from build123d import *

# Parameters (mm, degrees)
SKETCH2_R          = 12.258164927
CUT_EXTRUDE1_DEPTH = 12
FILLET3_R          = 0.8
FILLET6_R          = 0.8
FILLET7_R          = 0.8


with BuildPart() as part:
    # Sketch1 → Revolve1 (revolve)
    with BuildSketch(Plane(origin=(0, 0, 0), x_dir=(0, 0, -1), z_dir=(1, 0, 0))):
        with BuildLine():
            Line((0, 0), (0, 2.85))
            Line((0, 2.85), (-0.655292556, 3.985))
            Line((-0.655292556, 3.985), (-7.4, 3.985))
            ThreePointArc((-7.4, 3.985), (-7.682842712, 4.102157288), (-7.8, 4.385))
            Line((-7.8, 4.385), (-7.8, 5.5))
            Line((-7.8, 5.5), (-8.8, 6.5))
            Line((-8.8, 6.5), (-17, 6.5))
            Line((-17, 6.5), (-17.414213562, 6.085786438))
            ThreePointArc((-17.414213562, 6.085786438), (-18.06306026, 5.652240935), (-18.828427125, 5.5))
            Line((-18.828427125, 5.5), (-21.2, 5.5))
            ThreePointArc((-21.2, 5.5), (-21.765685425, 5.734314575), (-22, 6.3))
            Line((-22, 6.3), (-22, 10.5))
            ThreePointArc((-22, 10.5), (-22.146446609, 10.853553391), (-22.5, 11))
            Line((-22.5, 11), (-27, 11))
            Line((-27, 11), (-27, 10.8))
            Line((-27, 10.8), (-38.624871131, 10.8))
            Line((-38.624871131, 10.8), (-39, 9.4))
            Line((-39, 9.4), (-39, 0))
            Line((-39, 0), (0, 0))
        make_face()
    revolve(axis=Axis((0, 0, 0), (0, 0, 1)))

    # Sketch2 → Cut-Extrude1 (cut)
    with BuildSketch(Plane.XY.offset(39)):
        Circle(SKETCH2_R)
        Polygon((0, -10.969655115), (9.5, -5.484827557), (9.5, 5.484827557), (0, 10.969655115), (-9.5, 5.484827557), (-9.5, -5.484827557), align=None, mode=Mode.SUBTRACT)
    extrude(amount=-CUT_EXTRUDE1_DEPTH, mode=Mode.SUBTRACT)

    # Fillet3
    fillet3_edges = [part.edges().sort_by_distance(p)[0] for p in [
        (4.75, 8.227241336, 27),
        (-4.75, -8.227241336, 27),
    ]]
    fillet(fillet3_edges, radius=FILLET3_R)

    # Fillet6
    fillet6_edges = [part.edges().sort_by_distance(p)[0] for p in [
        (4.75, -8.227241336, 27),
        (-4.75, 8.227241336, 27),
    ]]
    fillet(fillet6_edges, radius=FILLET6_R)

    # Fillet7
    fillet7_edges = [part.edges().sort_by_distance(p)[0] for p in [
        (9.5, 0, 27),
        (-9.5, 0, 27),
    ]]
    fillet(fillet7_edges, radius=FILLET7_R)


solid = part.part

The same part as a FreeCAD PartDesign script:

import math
import FreeCAD as App
import Part
import Sketcher

V = App.Vector
Q = App.Units.Quantity


def edges_at(feature, points):
    """Names of the edges that pass closest to the given points."""
    edges = feature.Shape.Edges
    near = lambda p: min(range(len(edges)), key=lambda i: edges[i].distToShape(Part.Vertex(*p))[0])
    return sorted({f"Edge{near(p) + 1}" for p in points})

doc = App.newDocument("Part")
body = doc.addObject("PartDesign::Body", "Body")

sketch1 = body.newObject("Sketcher::SketchObject", "Sketch")
sketch1.AttachmentSupport = (doc.getObject("YZ_Plane"), [""])
sketch1.MapMode = "FlatFace"
sketch1.addGeometry([
    Part.LineSegment(V(0, 0, 0), V(2.85, 0, 0)),
    Part.LineSegment(V(2.85, 0, 0), V(3.98, 0.66, 0)),
    Part.LineSegment(V(3.98, 0.66, 0), V(3.98, 7.4, 0)),
    Part.ArcOfCircle(Part.Circle(V(4.39, 7.4, 0), V(0, 0, 1), 0.4), math.radians(90), math.radians(180)),
    Part.LineSegment(V(4.38, 7.8, 0), V(5.5, 7.8, 0)),
    Part.LineSegment(V(5.5, 7.8, 0), V(6.5, 8.8, 0)),
    Part.LineSegment(V(6.5, 8.8, 0), V(6.5, 17, 0)),
    Part.LineSegment(V(6.5, 17, 0), V(6.09, 17.41, 0)),
    Part.ArcOfCircle(Part.Circle(V(7.5, 18.83, 0), V(0, 0, 1), 2), math.radians(180), math.radians(225)),
    Part.LineSegment(V(5.5, 18.83, 0), V(5.5, 21.2, 0)),
    Part.ArcOfCircle(Part.Circle(V(6.3, 21.2, 0), V(0, 0, 1), 0.8), math.radians(90), math.radians(180)),
    Part.LineSegment(V(6.3, 22, 0), V(10.5, 22, 0)),
    Part.ArcOfCircle(Part.Circle(V(10.5, 22.5, 0), V(0, 0, 1), 0.5), math.radians(-90), math.radians(0)),
    Part.LineSegment(V(11, 22.5, 0), V(11, 27, 0)),
    Part.LineSegment(V(11, 27, 0), V(10.8, 27, 0)),
    Part.LineSegment(V(10.8, 27, 0), V(10.8, 38.62, 0)),
    Part.LineSegment(V(10.8, 38.62, 0), V(9.4, 39, 0)),
    Part.LineSegment(V(9.4, 39, 0), V(0, 39, 0)),
    Part.LineSegment(V(0, 39, 0), V(0, 0, 0)),
], False)
sketch1.addConstraint([
    Sketcher.Constraint("Coincident", 0, 2, 1, 1),
    Sketcher.Constraint("Coincident", 1, 2, 2, 1),
    Sketcher.Constraint("Tangent", 2, 2, 3, 2),
    Sketcher.Constraint("Tangent", 3, 1, 4, 1),
    Sketcher.Constraint("Coincident", 4, 2, 5, 1),
    Sketcher.Constraint("Coincident", 5, 2, 6, 1),
    Sketcher.Constraint("Coincident", 6, 2, 7, 1),
    Sketcher.Constraint("Tangent", 7, 2, 8, 2),
    Sketcher.Constraint("Tangent", 8, 1, 9, 1),
    Sketcher.Constraint("Tangent", 9, 2, 10, 2),
    Sketcher.Constraint("Tangent", 10, 1, 11, 1),
    Sketcher.Constraint("Tangent", 11, 2, 12, 1),
    Sketcher.Constraint("Tangent", 12, 2, 13, 1),
    Sketcher.Constraint("Coincident", 13, 2, 14, 1),
    Sketcher.Constraint("Coincident", 14, 2, 15, 1),
    Sketcher.Constraint("Coincident", 15, 2, 16, 1),
    Sketcher.Constraint("Coincident", 16, 2, 17, 1),
    Sketcher.Constraint("Coincident", 17, 2, 18, 1),
    Sketcher.Constraint("Coincident", 18, 2, 0, 1),
    Sketcher.Constraint("Horizontal", 0),
    Sketcher.Constraint("Vertical", 2),
    Sketcher.Constraint("Horizontal", 4),
    Sketcher.Constraint("Vertical", 6),
    Sketcher.Constraint("Vertical", 9),
    Sketcher.Constraint("Horizontal", 11),
    Sketcher.Constraint("Vertical", 13),
    Sketcher.Constraint("Horizontal", 14),
    Sketcher.Constraint("Vertical", 15),
    Sketcher.Constraint("Horizontal", 17),
    Sketcher.Constraint("Vertical", 18),
    Sketcher.Constraint("Coincident", 18, 2, -1, 1),
    Sketcher.Constraint("Perpendicular", 5, 7),
    Sketcher.Constraint("Vertical", 4, 2, 8, 1),
    Sketcher.Constraint("Radius", 8, Q("2 mm")),
    Sketcher.Constraint("Radius", 3, Q("0.4 mm")),
    Sketcher.Constraint("Radius", 10, Q("0.8 mm")),
    Sketcher.Constraint("Radius", 12, Q("0.5 mm")),
    Sketcher.Constraint("DistanceY", 18, 2, 18, 1, Q("39 mm")),
    Sketcher.Constraint("Angle", 1, Q("30 deg")),
    Sketcher.Constraint("Angle", 5, Q("45 deg")),
    Sketcher.Constraint("Angle", 16, Q("165 deg")),
    Sketcher.Constraint("DistanceX", 11, 1, 11, 2, Q("4.2 mm")),
    Sketcher.Constraint("DistanceX", 14, 2, 14, 1, Q("0.2 mm")),
    Sketcher.Constraint("DistanceX", 17, 2, 17, 1, Q("9.4 mm")),
    Sketcher.Constraint("DistanceY", 6, 1, 6, 2, Q("8.2 mm")),
    Sketcher.Constraint("DistanceY", 13, 1, 13, 2, Q("4.5 mm")),
    Sketcher.Constraint("DistanceY", -1, 1, 6, 2, Q("17 mm")),
    Sketcher.Constraint("DistanceY", -1, 1, 10, 1, Q("22 mm")),
    Sketcher.Constraint("DistanceX", -1, 1, 12, 2, Q("11 mm")),
    Sketcher.Constraint("DistanceX", 4, 2, 5, 2, Q("1 mm")),
    Sketcher.Constraint("DistanceX", 0, 1, 0, 2, Q("2.85 mm")),
    Sketcher.Constraint("DistanceX", 4, 1, 4, 2, Q("1.115 mm")),
])
revolution = body.newObject("PartDesign::Revolution", "Revolution")
revolution.Profile = sketch1
revolution.ReferenceAxis = (sketch1, ["V_Axis"])
revolution.Angle = 360

sketch2 = body.newObject("Sketcher::SketchObject", "Sketch001")
sketch2.AttachmentSupport = (doc.getObject("XY_Plane"), [""])
sketch2.MapMode = "FlatFace"
sketch2.AttachmentOffset = App.Placement(V(0, 0, 39), App.Rotation())
sketch2.addGeometry([
    Part.Circle(V(0, 0, 0), V(0, 0, 1), 12),
    Part.LineSegment(V(10, -5, 0), V(0, -11, 0)),
    Part.LineSegment(V(0, -11, 0), V(-10, -5, 0)),
    Part.LineSegment(V(-10, -5, 0), V(-10, 5, 0)),
    Part.LineSegment(V(-10, 5, 0), V(0, 11, 0)),
    Part.LineSegment(V(0, 11, 0), V(10, 5, 0)),
    Part.LineSegment(V(10, 5, 0), V(10, -5, 0)),
], False)
sketch2.addConstraint([
    Sketcher.Constraint("Coincident", 1, 2, 2, 1),
    Sketcher.Constraint("Coincident", 2, 2, 3, 1),
    Sketcher.Constraint("Coincident", 3, 2, 4, 1),
    Sketcher.Constraint("Coincident", 4, 2, 5, 1),
    Sketcher.Constraint("Coincident", 5, 2, 6, 1),
    Sketcher.Constraint("Coincident", 6, 2, 1, 1),
    Sketcher.Constraint("Vertical", 3),
    Sketcher.Constraint("Vertical", 6),
    Sketcher.Constraint("Coincident", 0, 3, -1, 1),
    Sketcher.Constraint("Symmetric", 1, 2, 4, 2, -1, 1),
    Sketcher.Constraint("Symmetric", 2, 2, 5, 2, -1, 1),
    Sketcher.Constraint("PointOnObject", 1, 2, -2),
    Sketcher.Constraint("Parallel", 1, 4),
    Sketcher.Constraint("Horizontal", 3, 2, 5, 2),
    Sketcher.Constraint("Angle", 1, Q("-150 deg")),
    Sketcher.Constraint("DistanceX", 3, 2, 5, 2, Q("19 mm")),
    Sketcher.Constraint("Diameter", 0, Q("24.51633 mm")),
    Sketcher.Constraint("DistanceY", 3, 1, 3, 2, Q("10.969655 mm")),
])
pocket1 = body.newObject("PartDesign::Pocket", "Pocket")
pocket1.Profile = sketch2
pocket1.Length = 12
doc.recompute()

fillet = body.newObject("PartDesign::Fillet", "Fillet")
fillet.Base = (pocket1, edges_at(pocket1, [(4.75, 8.227, 27), (-4.75, -8.227, 27)]))
fillet.Radius = 0.8
doc.recompute()

fillet2 = body.newObject("PartDesign::Fillet", "Fillet001")
fillet2.Base = (fillet, edges_at(fillet, [(4.75, -8.227, 27), (-4.75, 8.227, 27)]))
fillet2.Radius = 0.8
doc.recompute()

fillet3 = body.newObject("PartDesign::Fillet", "Fillet002")
fillet3.Base = (fillet2, edges_at(fillet2, [(9.5, 0, 27), (-9.5, 0, 27)]))
fillet3.Radius = 0.8

doc.recompute()
